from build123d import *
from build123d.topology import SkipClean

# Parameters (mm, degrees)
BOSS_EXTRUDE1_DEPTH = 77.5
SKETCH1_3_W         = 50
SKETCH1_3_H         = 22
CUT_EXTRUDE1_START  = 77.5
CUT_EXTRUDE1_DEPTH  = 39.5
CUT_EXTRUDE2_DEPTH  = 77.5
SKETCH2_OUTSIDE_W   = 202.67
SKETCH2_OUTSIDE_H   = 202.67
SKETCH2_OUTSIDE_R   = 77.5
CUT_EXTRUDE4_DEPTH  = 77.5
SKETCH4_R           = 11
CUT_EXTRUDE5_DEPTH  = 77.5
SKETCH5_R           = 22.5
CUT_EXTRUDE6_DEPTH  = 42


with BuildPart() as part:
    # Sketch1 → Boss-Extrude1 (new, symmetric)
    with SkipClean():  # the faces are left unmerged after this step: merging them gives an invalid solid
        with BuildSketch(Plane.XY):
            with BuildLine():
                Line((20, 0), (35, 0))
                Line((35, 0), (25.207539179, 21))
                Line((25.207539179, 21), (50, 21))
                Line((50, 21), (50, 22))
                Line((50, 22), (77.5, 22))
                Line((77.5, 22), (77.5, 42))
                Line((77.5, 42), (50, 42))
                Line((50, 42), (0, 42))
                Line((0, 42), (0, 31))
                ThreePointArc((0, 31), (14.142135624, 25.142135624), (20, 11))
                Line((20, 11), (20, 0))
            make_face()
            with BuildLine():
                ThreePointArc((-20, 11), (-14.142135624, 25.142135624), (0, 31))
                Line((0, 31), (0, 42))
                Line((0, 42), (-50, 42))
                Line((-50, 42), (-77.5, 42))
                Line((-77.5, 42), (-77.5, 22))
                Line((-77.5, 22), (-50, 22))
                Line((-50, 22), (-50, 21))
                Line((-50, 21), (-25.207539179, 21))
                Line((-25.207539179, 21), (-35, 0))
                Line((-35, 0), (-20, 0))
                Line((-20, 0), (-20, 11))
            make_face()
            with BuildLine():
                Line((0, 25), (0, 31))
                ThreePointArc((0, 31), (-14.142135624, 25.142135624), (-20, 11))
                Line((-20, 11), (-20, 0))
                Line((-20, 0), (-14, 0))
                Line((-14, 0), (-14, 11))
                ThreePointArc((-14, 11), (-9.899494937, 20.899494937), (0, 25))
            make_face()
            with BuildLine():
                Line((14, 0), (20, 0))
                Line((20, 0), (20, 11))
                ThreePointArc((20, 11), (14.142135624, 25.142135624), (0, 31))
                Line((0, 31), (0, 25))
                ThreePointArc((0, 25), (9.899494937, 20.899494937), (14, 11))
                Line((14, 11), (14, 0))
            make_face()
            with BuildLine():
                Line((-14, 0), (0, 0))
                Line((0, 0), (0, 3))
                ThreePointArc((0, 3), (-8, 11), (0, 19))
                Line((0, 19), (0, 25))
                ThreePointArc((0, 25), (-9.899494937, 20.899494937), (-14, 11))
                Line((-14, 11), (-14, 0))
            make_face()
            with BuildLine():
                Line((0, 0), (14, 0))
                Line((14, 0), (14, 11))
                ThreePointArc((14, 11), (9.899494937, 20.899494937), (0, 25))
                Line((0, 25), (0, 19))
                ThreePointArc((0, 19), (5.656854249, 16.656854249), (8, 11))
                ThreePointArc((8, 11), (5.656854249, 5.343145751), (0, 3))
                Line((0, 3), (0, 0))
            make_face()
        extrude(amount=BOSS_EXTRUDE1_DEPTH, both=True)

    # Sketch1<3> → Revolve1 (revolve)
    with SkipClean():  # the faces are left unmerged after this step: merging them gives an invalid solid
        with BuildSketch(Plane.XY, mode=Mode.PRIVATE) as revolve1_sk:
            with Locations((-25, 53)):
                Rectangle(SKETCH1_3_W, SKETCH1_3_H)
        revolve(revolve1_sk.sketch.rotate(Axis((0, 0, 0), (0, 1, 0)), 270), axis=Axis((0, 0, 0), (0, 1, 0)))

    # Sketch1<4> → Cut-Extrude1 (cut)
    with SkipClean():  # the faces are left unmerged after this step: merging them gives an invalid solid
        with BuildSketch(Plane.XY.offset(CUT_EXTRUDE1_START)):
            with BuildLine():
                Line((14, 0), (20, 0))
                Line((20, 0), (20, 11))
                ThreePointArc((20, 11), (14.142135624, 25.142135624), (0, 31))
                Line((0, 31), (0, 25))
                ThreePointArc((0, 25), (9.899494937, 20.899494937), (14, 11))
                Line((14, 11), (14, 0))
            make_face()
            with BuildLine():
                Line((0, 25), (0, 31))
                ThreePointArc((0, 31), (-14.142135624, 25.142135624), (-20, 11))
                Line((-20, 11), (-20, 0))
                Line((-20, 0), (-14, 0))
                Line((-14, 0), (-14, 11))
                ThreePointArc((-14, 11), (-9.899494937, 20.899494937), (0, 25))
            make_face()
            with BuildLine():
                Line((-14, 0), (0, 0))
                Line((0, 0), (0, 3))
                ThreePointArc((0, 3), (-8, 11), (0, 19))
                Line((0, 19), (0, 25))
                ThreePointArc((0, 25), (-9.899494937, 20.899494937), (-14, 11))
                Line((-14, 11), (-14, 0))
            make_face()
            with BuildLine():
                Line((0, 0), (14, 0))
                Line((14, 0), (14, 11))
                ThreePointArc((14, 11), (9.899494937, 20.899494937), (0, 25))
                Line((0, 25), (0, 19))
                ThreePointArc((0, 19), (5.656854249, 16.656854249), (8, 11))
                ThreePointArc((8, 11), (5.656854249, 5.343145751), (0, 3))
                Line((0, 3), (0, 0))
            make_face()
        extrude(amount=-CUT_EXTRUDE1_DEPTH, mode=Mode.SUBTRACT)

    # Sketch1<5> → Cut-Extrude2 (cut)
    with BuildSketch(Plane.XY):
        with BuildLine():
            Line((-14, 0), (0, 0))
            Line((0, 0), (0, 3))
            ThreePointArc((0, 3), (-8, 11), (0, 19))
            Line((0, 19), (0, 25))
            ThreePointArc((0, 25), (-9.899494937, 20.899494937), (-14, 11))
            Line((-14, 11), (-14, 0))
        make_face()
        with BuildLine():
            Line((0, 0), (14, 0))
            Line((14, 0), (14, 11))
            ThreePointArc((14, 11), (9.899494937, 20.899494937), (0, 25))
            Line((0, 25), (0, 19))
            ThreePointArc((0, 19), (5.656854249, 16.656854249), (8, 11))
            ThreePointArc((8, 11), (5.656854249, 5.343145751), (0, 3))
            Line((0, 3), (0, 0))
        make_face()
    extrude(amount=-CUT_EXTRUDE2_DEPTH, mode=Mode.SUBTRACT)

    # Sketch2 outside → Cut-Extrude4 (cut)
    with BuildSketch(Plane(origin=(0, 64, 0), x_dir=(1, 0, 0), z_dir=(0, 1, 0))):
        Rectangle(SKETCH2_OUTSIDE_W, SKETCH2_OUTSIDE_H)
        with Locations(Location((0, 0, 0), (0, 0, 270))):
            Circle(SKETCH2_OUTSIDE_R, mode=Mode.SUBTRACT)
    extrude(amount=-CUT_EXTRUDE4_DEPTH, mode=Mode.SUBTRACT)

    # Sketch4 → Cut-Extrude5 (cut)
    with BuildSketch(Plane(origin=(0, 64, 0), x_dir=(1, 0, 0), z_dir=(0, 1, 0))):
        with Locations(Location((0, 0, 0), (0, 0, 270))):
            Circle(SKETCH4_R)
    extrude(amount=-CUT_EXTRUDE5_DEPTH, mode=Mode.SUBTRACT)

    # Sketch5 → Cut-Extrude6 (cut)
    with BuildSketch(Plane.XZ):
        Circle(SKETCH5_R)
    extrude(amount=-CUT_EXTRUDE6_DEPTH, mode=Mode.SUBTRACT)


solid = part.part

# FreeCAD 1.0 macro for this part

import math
import FreeCAD as App
import Part
import Sketcher
from FreeCAD import Vector
Q = App.Units.Quantity


def add_polygon(sketch, points):
    """Adds a closed chain of lines whose ends are joined by coincident constraints."""
    first, n = sketch.GeometryCount, len(points)
    for a, b in zip(points, points[1:] + points[:1]):
        sketch.addGeometry(Part.LineSegment(App.Vector(*a, 0), App.Vector(*b, 0)), False)
    for i in range(n):
        sketch.addConstraint(Sketcher.Constraint("Coincident", first + i, 2, first + (i + 1) % n, 1))

doc = App.newDocument("Part")
body = doc.addObject("PartDesign::Body", "Body")

sketch1 = body.newObject("Sketcher::SketchObject", "Sketch")
sketch1.AttachmentSupport = (doc.getObject("XY_Plane"), [""])
sketch1.MapMode = "FlatFace"
sketch1.addGeometry([
    Part.LineSegment(Vector(20, 0, 0), Vector(35, 0, 0)),
    Part.LineSegment(Vector(35, 0, 0), Vector(25.207539, 21, 0)),
    Part.LineSegment(Vector(25.207539, 21, 0), Vector(50, 21, 0)),
    Part.LineSegment(Vector(50, 21, 0), Vector(50, 22, 0)),
    Part.LineSegment(Vector(50, 22, 0), Vector(77.5, 22, 0)),
    Part.LineSegment(Vector(77.5, 22, 0), Vector(77.5, 42, 0)),
    Part.LineSegment(Vector(77.5, 42, 0), Vector(0, 42, 0)),
    Part.LineSegment(Vector(0, 42, 0), Vector(0, 31, 0)),
    Part.ArcOfCircle(Part.Circle(Vector(0, 11, 0), Vector(0, 0, 1), 20), math.radians(0), math.radians(90)),
    Part.LineSegment(Vector(20, 11, 0), Vector(20, 0, 0)),
    Part.ArcOfCircle(Part.Circle(Vector(0, 11, 0), Vector(0, 0, 1), 20), math.radians(90), math.radians(180)),
    Part.LineSegment(Vector(0, 31, 0), Vector(0, 42, 0)),
    Part.LineSegment(Vector(0, 42, 0), Vector(-50, 42, 0)),
    Part.LineSegment(Vector(-50, 42, 0), Vector(-77.5, 42, 0)),
    Part.LineSegment(Vector(-77.5, 42, 0), Vector(-77.5, 22, 0)),
    Part.LineSegment(Vector(-77.5, 22, 0), Vector(-50, 22, 0)),
    Part.LineSegment(Vector(-50, 22, 0), Vector(-50, 21, 0)),
    Part.LineSegment(Vector(-50, 21, 0), Vector(-25.207539, 21, 0)),
    Part.LineSegment(Vector(-25.207539, 21, 0), Vector(-35, 0, 0)),
    Part.LineSegment(Vector(-35, 0, 0), Vector(-20, 0, 0)),
    Part.LineSegment(Vector(-20, 0, 0), Vector(-20, 11, 0)),
    Part.LineSegment(Vector(0, 25, 0), Vector(0, 31, 0)),
    Part.ArcOfCircle(Part.Circle(Vector(0, 11, 0), Vector(0, 0, 1), 20), math.radians(90), math.radians(180)),
    Part.LineSegment(Vector(-20, 11, 0), Vector(-20, 0, 0)),
    Part.LineSegment(Vector(-20, 0, 0), Vector(-14, 0, 0)),
    Part.LineSegment(Vector(-14, 0, 0), Vector(-14, 11, 0)),
    Part.ArcOfCircle(Part.Circle(Vector(0, 11, 0), Vector(0, 0, 1), 14), math.radians(90), math.radians(180)),
    Part.LineSegment(Vector(14, 0, 0), Vector(20, 0, 0)),
    Part.LineSegment(Vector(20, 0, 0), Vector(20, 11, 0)),
    Part.ArcOfCircle(Part.Circle(Vector(0, 11, 0), Vector(0, 0, 1), 20), math.radians(0), math.radians(90)),
    Part.LineSegment(Vector(0, 31, 0), Vector(0, 25, 0)),
    Part.ArcOfCircle(Part.Circle(Vector(0, 11, 0), Vector(0, 0, 1), 14), math.radians(0), math.radians(90)),
    Part.LineSegment(Vector(14, 11, 0), Vector(14, 0, 0)),
    Part.LineSegment(Vector(-14, 0, 0), Vector(0, 0, 0)),
    Part.LineSegment(Vector(0, 0, 0), Vector(0, 3, 0)),
    Part.ArcOfCircle(Part.Circle(Vector(0, 11, 0), Vector(0, 0, 1), 8), math.radians(90), math.radians(270)),
    Part.LineSegment(Vector(0, 19, 0), Vector(0, 25, 0)),
    Part.ArcOfCircle(Part.Circle(Vector(0, 11, 0), Vector(0, 0, 1), 14), math.radians(90), math.radians(180)),
    Part.LineSegment(Vector(-14, 11, 0), Vector(-14, 0, 0)),
    Part.LineSegment(Vector(0, 0, 0), Vector(14, 0, 0)),
    Part.LineSegment(Vector(14, 0, 0), Vector(14, 11, 0)),
    Part.ArcOfCircle(Part.Circle(Vector(0, 11, 0), Vector(0, 0, 1), 14), math.radians(0), math.radians(90)),
    Part.LineSegment(Vector(0, 25, 0), Vector(0, 19, 0)),
    Part.ArcOfCircle(Part.Circle(Vector(0, 11, 0), Vector(0, 0, 1), 8), math.radians(0), math.radians(90)),
    Part.ArcOfCircle(Part.Circle(Vector(0, 11, 0), Vector(0, 0, 1), 8), math.radians(-90), math.radians(0)),
    Part.LineSegment(Vector(0, 3, 0), Vector(0, 0, 0)),
], False)
sketch1.addConstraint([
    Sketcher.Constraint("Coincident", 0, 2, 1, 1),
    Sketcher.Constraint("Coincident", 1, 2, 2, 1),
    Sketcher.Constraint("Coincident", 2, 2, 3, 1),
    Sketcher.Constraint("Coincident", 3, 2, 4, 1),
    Sketcher.Constraint("Coincident", 4, 2, 5, 1),
    Sketcher.Constraint("Coincident", 5, 2, 6, 1),
    Sketcher.Constraint("Coincident", 6, 2, 7, 1),
    Sketcher.Constraint("Coincident", 7, 2, 8, 2),
    Sketcher.Constraint("Tangent", 8, 1, 9, 1),
    Sketcher.Constraint("Coincident", 9, 2, 0, 1),
    Sketcher.Constraint("Coincident", 10, 1, 11, 1),
    Sketcher.Constraint("Coincident", 11, 2, 12, 1),
    Sketcher.Constraint("Coincident", 12, 2, 13, 1),
    Sketcher.Constraint("Coincident", 13, 2, 14, 1),
    Sketcher.Constraint("Coincident", 14, 2, 15, 1),
    Sketcher.Constraint("Coincident", 15, 2, 16, 1),
    Sketcher.Constraint("Coincident", 16, 2, 17, 1),
    Sketcher.Constraint("Coincident", 17, 2, 18, 1),
    Sketcher.Constraint("Coincident", 18, 2, 19, 1),
    Sketcher.Constraint("Coincident", 19, 2, 20, 1),
    Sketcher.Constraint("Tangent", 20, 2, 10, 2),
    Sketcher.Constraint("Coincident", 21, 2, 22, 1),
    Sketcher.Constraint("Tangent", 22, 2, 23, 1),
    Sketcher.Constraint("Coincident", 23, 2, 24, 1),
    Sketcher.Constraint("Coincident", 24, 2, 25, 1),
    Sketcher.Constraint("Tangent", 25, 2, 26, 2),
    Sketcher.Constraint("Coincident", 26, 1, 21, 1),
    Sketcher.Constraint("Coincident", 27, 2, 28, 1),
    Sketcher.Constraint("Tangent", 28, 2, 29, 1),
    Sketcher.Constraint("Coincident", 29, 2, 30, 1),
    Sketcher.Constraint("Coincident", 30, 2, 31, 2),
    Sketcher.Constraint("Tangent", 31, 1, 32, 1),
    Sketcher.Constraint("Coincident", 32, 2, 27, 1),
    Sketcher.Constraint("Coincident", 33, 2, 34, 1),
    Sketcher.Constraint("Coincident", 34, 2, 35, 2),
    Sketcher.Constraint("Coincident", 35, 1, 36, 1),
    Sketcher.Constraint("Coincident", 36, 2, 37, 1),
    Sketcher.Constraint("Tangent", 37, 2, 38, 1),
    Sketcher.Constraint("Coincident", 38, 2, 33, 1),
    Sketcher.Constraint("Coincident", 39, 2, 40, 1),
    Sketcher.Constraint("Tangent", 40, 2, 41, 1),
    Sketcher.Constraint("Coincident", 41, 2, 42, 1),
    Sketcher.Constraint("Coincident", 42, 2, 43, 2),
    Sketcher.Constraint("Tangent", 43, 1, 44, 2),
    Sketcher.Constraint("Coincident", 44, 1, 45, 1),
    Sketcher.Constraint("Coincident", 45, 2, 39, 1),
    Sketcher.Constraint("Horizontal", 0),
    Sketcher.Constraint("Horizontal", 2),
    Sketcher.Constraint("Vertical", 3),
    Sketcher.Constraint("Horizontal", 4),
    Sketcher.Constraint("Vertical", 5),
    Sketcher.Constraint("Horizontal", 6),
    Sketcher.Constraint("Vertical", 7),
    Sketcher.Constraint("Vertical", 9),
    Sketcher.Constraint("Vertical", 11),
    Sketcher.Constraint("Horizontal", 12),
    Sketcher.Constraint("Horizontal", 13),
    Sketcher.Constraint("Vertical", 14),
    Sketcher.Constraint("Horizontal", 15),
    Sketcher.Constraint("Vertical", 16),
    Sketcher.Constraint("Horizontal", 17),
    Sketcher.Constraint("Horizontal", 19),
    Sketcher.Constraint("Vertical", 20),
    Sketcher.Constraint("Vertical", 21),
    Sketcher.Constraint("Vertical", 23),
    Sketcher.Constraint("Horizontal", 24),
    Sketcher.Constraint("Vertical", 25),
    Sketcher.Constraint("Horizontal", 27),
    Sketcher.Constraint("Vertical", 28),
    Sketcher.Constraint("Vertical", 30),
    Sketcher.Constraint("Vertical", 32),
    Sketcher.Constraint("Horizontal", 33),
    Sketcher.Constraint("Vertical", 34),
    Sketcher.Constraint("Vertical", 36),
    Sketcher.Constraint("Vertical", 38),
    Sketcher.Constraint("Horizontal", 39),
    Sketcher.Constraint("Vertical", 40),
    Sketcher.Constraint("Vertical", 42),
    Sketcher.Constraint("Vertical", 45),
    Sketcher.Constraint("Coincident", 33, 2, -1, 1),
    Sketcher.Constraint("Coincident", 45, 2, -1, 1),
    Sketcher.Constraint("Coincident", 10, 3, 8, 3),
    Sketcher.Constraint("Coincident", 22, 3, 8, 3),
    Sketcher.Constraint("Coincident", 26, 3, 8, 3),
    Sketcher.Constraint("Coincident", 29, 3, 8, 3),
    Sketcher.Constraint("Coincident", 31, 3, 8, 3),
    Sketcher.Constraint("Coincident", 35, 3, 8, 3),
    Sketcher.Constraint("Coincident", 37, 3, 8, 3),
    Sketcher.Constraint("Coincident", 41, 3, 8, 3),
    Sketcher.Constraint("Coincident", 43, 3, 8, 3),
    Sketcher.Constraint("Coincident", 10, 1, 7, 2),
    Sketcher.Constraint("Coincident", 21, 2, 7, 2),
    Sketcher.Constraint("Coincident", 27, 2, 9, 2),
    Sketcher.Constraint("Coincident", 30, 2, 26, 1),
    Sketcher.Constraint("Coincident", 36, 2, 26, 1),
    Sketcher.Constraint("Coincident", 39, 2, 32, 2),
    Sketcher.Constraint("Coincident", 42, 2, 35, 1),
    Sketcher.Constraint("Equal", 43, 44),
    Sketcher.Constraint("Symmetric", 0, 2, 18, 2, -1, 1),
    Sketcher.Constraint("Symmetric", 9, 2, 23, 2, -1, 1),
    Sketcher.Constraint("Symmetric", 5, 2, 13, 2, -2),
    Sketcher.Constraint("Symmetric", 3, 2, 15, 2, -2),
    Sketcher.Constraint("Symmetric", 1, 2, 17, 2, -2),
    Sketcher.Constraint("PointOnObject", 6, 2, -2),
    Sketcher.Constraint("Horizontal", 40, 2, 43, 1),
    Sketcher.Constraint("Vertical", 12, 2, 15, 2),
    Sketcher.Constraint("Equal", 7, 9),
    Sketcher.Constraint("Equal", 30, 36),
    Sketcher.Constraint("Radius", 8, Q("20 mm")),
    Sketcher.Constraint("Radius", 26, Q("14 mm")),
    Sketcher.Constraint("DistanceX", 0, 1, 0, 2, Q("15 mm")),
    Sketcher.Constraint("DistanceX", 12, 2, 12, 1, Q("50 mm")),
    Sketcher.Constraint("DistanceY", 3, 1, 3, 2, Q("1 mm")),
    Sketcher.Constraint("DistanceY", 5, 1, 5, 2, Q("20 mm")),
    Sketcher.Constraint("DistanceY", 7, 2, 7, 1, Q("11 mm")),
    Sketcher.Constraint("Angle", 1, Q("115 deg")),
    Sketcher.Constraint("DistanceX", 4, 1, 4, 2, Q("27.5 mm")),
])
pad1 = body.newObject("PartDesign::Pad", "Pad")
pad1.Profile = sketch1
pad1.Length = 155
pad1.Midplane = True

sketch2 = body.newObject("Sketcher::SketchObject", "Sketch001")
sketch2.AttachmentSupport = (doc.getObject("XY_Plane"), [""])
sketch2.MapMode = "FlatFace"
add_polygon(sketch2, [(-50, 64), (-50, 42), (0, 42), (0, 64)])
sketch2.addConstraint([
    Sketcher.Constraint("Vertical", 0),
    Sketcher.Constraint("Horizontal", 1),
    Sketcher.Constraint("Vertical", 2),
    Sketcher.Constraint("Horizontal", 3),
    Sketcher.Constraint("PointOnObject", 1, 2, -2),
    Sketcher.Constraint("DistanceX", 1, 1, 1, 2, Q("50 mm")),
    Sketcher.Constraint("DistanceY", 0, 2, 0, 1, Q("22 mm")),
    Sketcher.Constraint("DistanceY", -1, 1, 0, 2, Q("42 mm")),
])
revolution = body.newObject("PartDesign::Revolution", "Revolution")
revolution.Profile = sketch2
revolution.ReferenceAxis = (sketch2, ["V_Axis"])
revolution.Angle = 360

sketch3 = body.newObject("Sketcher::SketchObject", "Sketch002")
sketch3.AttachmentSupport = (doc.getObject("XY_Plane"), [""])
sketch3.MapMode = "FlatFace"
sketch3.AttachmentOffset = App.Placement(Vector(0, 0, 77.5), App.Rotation())
sketch3.addGeometry([
    Part.LineSegment(Vector(14, 0, 0), Vector(20, 0, 0)),
    Part.LineSegment(Vector(20, 0, 0), Vector(20, 11, 0)),
    Part.ArcOfCircle(Part.Circle(Vector(0, 11, 0), Vector(0, 0, 1), 20), math.radians(0), math.radians(90)),
    Part.LineSegment(Vector(0, 31, 0), Vector(0, 25, 0)),
    Part.ArcOfCircle(Part.Circle(Vector(0, 11, 0), Vector(0, 0, 1), 14), math.radians(0), math.radians(90)),
    Part.LineSegment(Vector(14, 11, 0), Vector(14, 0, 0)),
    Part.LineSegment(Vector(0, 25, 0), Vector(0, 31, 0)),
    Part.ArcOfCircle(Part.Circle(Vector(0, 11, 0), Vector(0, 0, 1), 20), math.radians(90), math.radians(180)),
    Part.LineSegment(Vector(-20, 11, 0), Vector(-20, 0, 0)),
    Part.LineSegment(Vector(-20, 0, 0), Vector(-14, 0, 0)),
    Part.LineSegment(Vector(-14, 0, 0), Vector(-14, 11, 0)),
    Part.ArcOfCircle(Part.Circle(Vector(0, 11, 0), Vector(0, 0, 1), 14), math.radians(90), math.radians(180)),
    Part.LineSegment(Vector(-14, 0, 0), Vector(0, 0, 0)),
    Part.LineSegment(Vector(0, 0, 0), Vector(0, 3, 0)),
    Part.ArcOfCircle(Part.Circle(Vector(0, 11, 0), Vector(0, 0, 1), 8), math.radians(90), math.radians(270)),
    Part.LineSegment(Vector(0, 19, 0), Vector(0, 25, 0)),
    Part.ArcOfCircle(Part.Circle(Vector(0, 11, 0), Vector(0, 0, 1), 14), math.radians(90), math.radians(180)),
    Part.LineSegment(Vector(-14, 11, 0), Vector(-14, 0, 0)),
    Part.LineSegment(Vector(0, 0, 0), Vector(14, 0, 0)),
    Part.LineSegment(Vector(14, 0, 0), Vector(14, 11, 0)),
    Part.ArcOfCircle(Part.Circle(Vector(0, 11, 0), Vector(0, 0, 1), 14), math.radians(0), math.radians(90)),
    Part.LineSegment(Vector(0, 25, 0), Vector(0, 19, 0)),
    Part.ArcOfCircle(Part.Circle(Vector(0, 11, 0), Vector(0, 0, 1), 8), math.radians(0), math.radians(90)),
    Part.ArcOfCircle(Part.Circle(Vector(0, 11, 0), Vector(0, 0, 1), 8), math.radians(-90), math.radians(0)),
    Part.LineSegment(Vector(0, 3, 0), Vector(0, 0, 0)),
], False)
sketch3.addConstraint([
    Sketcher.Constraint("Coincident", 0, 2, 1, 1),
    Sketcher.Constraint("Tangent", 1, 2, 2, 1),
    Sketcher.Constraint("Coincident", 2, 2, 3, 1),
    Sketcher.Constraint("Coincident", 3, 2, 4, 2),
    Sketcher.Constraint("Tangent", 4, 1, 5, 1),
    Sketcher.Constraint("Coincident", 5, 2, 0, 1),
    Sketcher.Constraint("Coincident", 6, 2, 7, 1),
    Sketcher.Constraint("Tangent", 7, 2, 8, 1),
    Sketcher.Constraint("Coincident", 8, 2, 9, 1),
    Sketcher.Constraint("Coincident", 9, 2, 10, 1),
    Sketcher.Constraint("Tangent", 10, 2, 11, 2),
    Sketcher.Constraint("Coincident", 11, 1, 6, 1),
    Sketcher.Constraint("Coincident", 12, 2, 13, 1),
    Sketcher.Constraint("Coincident", 13, 2, 14, 2),
    Sketcher.Constraint("Coincident", 14, 1, 15, 1),
    Sketcher.Constraint("Coincident", 15, 2, 16, 1),
    Sketcher.Constraint("Tangent", 16, 2, 17, 1),
    Sketcher.Constraint("Coincident", 17, 2, 12, 1),
    Sketcher.Constraint("Coincident", 18, 2, 19, 1),
    Sketcher.Constraint("Tangent", 19, 2, 20, 1),
    Sketcher.Constraint("Coincident", 20, 2, 21, 1),
    Sketcher.Constraint("Coincident", 21, 2, 22, 2),
    Sketcher.Constraint("Tangent", 22, 1, 23, 2),
    Sketcher.Constraint("Coincident", 23, 1, 24, 1),
    Sketcher.Constraint("Coincident", 24, 2, 18, 1),
    Sketcher.Constraint("Horizontal", 0),
    Sketcher.Constraint("Vertical", 1),
    Sketcher.Constraint("Vertical", 3),
    Sketcher.Constraint("Vertical", 5),
    Sketcher.Constraint("Vertical", 6),
    Sketcher.Constraint("Vertical", 8),
    Sketcher.Constraint("Horizontal", 9),
    Sketcher.Constraint("Vertical", 10),
    Sketcher.Constraint("Horizontal", 12),
    Sketcher.Constraint("Vertical", 13),
    Sketcher.Constraint("Vertical", 15),
    Sketcher.Constraint("Vertical", 17),
    Sketcher.Constraint("Horizontal", 18),
    Sketcher.Constraint("Vertical", 19),
    Sketcher.Constraint("Vertical", 21),
    Sketcher.Constraint("Vertical", 24),
    Sketcher.Constraint("Coincident", 12, 2, -1, 1),
    Sketcher.Constraint("Coincident", 24, 2, -1, 1),
    Sketcher.Constraint("Coincident", 4, 3, 2, 3),
    Sketcher.Constraint("Coincident", 7, 3, 2, 3),
    Sketcher.Constraint("Coincident", 11, 3, 2, 3),
    Sketcher.Constraint("Coincident", 14, 3, 2, 3),
    Sketcher.Constraint("Coincident", 16, 3, 2, 3),
    Sketcher.Constraint("Coincident", 20, 3, 2, 3),
    Sketcher.Constraint("Coincident", 22, 3, 2, 3),
    Sketcher.Constraint("Coincident", 6, 2, 2, 2),
    Sketcher.Constraint("Coincident", 15, 2, 3, 2),
    Sketcher.Constraint("Coincident", 17, 2, 9, 2),
    Sketcher.Constraint("Coincident", 18, 2, 5, 2),
    Sketcher.Constraint("Coincident", 21, 2, 14, 1),
    Sketcher.Constraint("Equal", 22, 23),
    Sketcher.Constraint("PointOnObject", 2, 3, -2),
    Sketcher.Constraint("PointOnObject", 2, 2, -2),
    Sketcher.Constraint("Horizontal", 19, 2, 22, 1),
    Sketcher.Constraint("Equal", 6, 15),
    Sketcher.Constraint("Radius", 2, Q("20 mm")),
    Sketcher.Constraint("Radius", 4, Q("14 mm")),
    Sketcher.Constraint("DistanceY", 1, 1, 1, 2, Q("11 mm")),
])
pocket1 = body.newObject("PartDesign::Pocket", "Pocket")
pocket1.Profile = sketch3
pocket1.Length = 39.5

sketch4 = body.newObject("Sketcher::SketchObject", "Sketch003")
sketch4.AttachmentSupport = (doc.getObject("XY_Plane"), [""])
sketch4.MapMode = "FlatFace"
sketch4.addGeometry([
    Part.LineSegment(Vector(-14, 0, 0), Vector(14, 0, 0)),
    Part.LineSegment(Vector(14, 0, 0), Vector(14, 11, 0)),
    Part.ArcOfCircle(Part.Circle(Vector(0, 11, 0), Vector(0, 0, 1), 14), math.radians(0), math.radians(90)),
    Part.ArcOfCircle(Part.Circle(Vector(0, 11, 0), Vector(0, 0, 1), 14), math.radians(90), math.radians(180)),
    Part.LineSegment(Vector(-14, 11, 0), Vector(-14, 0, 0)),
    Part.ArcOfCircle(Part.Circle(Vector(0, 11, 0), Vector(0, 0, 1), 8), math.radians(90), math.radians(270)),
    Part.ArcOfCircle(Part.Circle(Vector(0, 11, 0), Vector(0, 0, 1), 8), math.radians(0), math.radians(90)),
    Part.ArcOfCircle(Part.Circle(Vector(0, 11, 0), Vector(0, 0, 1), 8), math.radians(-90), math.radians(0)),
], False)
sketch4.addConstraint([
    Sketcher.Constraint("Coincident", 0, 2, 1, 1),
    Sketcher.Constraint("Tangent", 1, 2, 2, 1),
    Sketcher.Constraint("Tangent", 2, 2, 3, 1),
    Sketcher.Constraint("Tangent", 3, 2, 4, 1),
    Sketcher.Constraint("Coincident", 4, 2, 0, 1),
    Sketcher.Constraint("Tangent", 5, 1, 6, 2),
    Sketcher.Constraint("Tangent", 6, 1, 7, 2),
    Sketcher.Constraint("Tangent", 7, 1, 5, 2),
    Sketcher.Constraint("Horizontal", 0),
    Sketcher.Constraint("Vertical", 1),
    Sketcher.Constraint("Vertical", 4),
    Sketcher.Constraint("Coincident", 5, 3, 2, 3),
    Sketcher.Constraint("Equal", 2, 3),
    Sketcher.Constraint("Symmetric", 0, 2, 4, 2, -1, 1),
    Sketcher.Constraint("PointOnObject", 2, 2, -2),
    Sketcher.Constraint("PointOnObject", 5, 1, -2),
    Sketcher.Constraint("PointOnObject", 7, 1, -2),
    Sketcher.Constraint("Horizontal", 3, 2, 6, 1),
    Sketcher.Constraint("Radius", 2, Q("14 mm")),
    Sketcher.Constraint("Radius", 5, Q("8 mm")),
    Sketcher.Constraint("DistanceY", 1, 1, 1, 2, Q("11 mm")),
])
pocket2 = body.newObject("PartDesign::Pocket", "Pocket001")
pocket2.Profile = sketch4
pocket2.Length = 77.5

sketch5 = body.newObject("Sketcher::SketchObject", "Sketch004")
sketch5.AttachmentSupport = (doc.getObject("XZ_Plane"), [""])
sketch5.MapMode = "FlatFace"
sketch5.AttachmentOffset = App.Placement(Vector(0, 0, -64), App.Rotation())
add_polygon(sketch5, [(-101.335, -101.335), (-101.335, 101.335), (101.335, 101.335), (101.335, -101.335)])
sketch5.addGeometry(Part.Circle(Vector(0, 0, 0), Vector(0, 0, 1), 77.5), False)
sketch5.addConstraint([
    Sketcher.Constraint("Vertical", 0),
    Sketcher.Constraint("Horizontal", 1),
    Sketcher.Constraint("Vertical", 2),
    Sketcher.Constraint("Horizontal", 3),
    Sketcher.Constraint("Coincident", 4, 3, -1, 1),
    Sketcher.Constraint("Symmetric", 0, 2, 2, 2, -1, 1),
    Sketcher.Constraint("Equal", 3, 0),
    Sketcher.Constraint("Diameter", 4, Q("155 mm")),
    Sketcher.Constraint("DistanceX", 1, 1, 1, 2, Q("202.67 mm")),
])
pocket3 = body.newObject("PartDesign::Pocket", "Pocket002")
pocket3.Profile = sketch5
pocket3.Length = 77.5
pocket3.Reversed = True

sketch6 = body.newObject("Sketcher::SketchObject", "Sketch005")
sketch6.AttachmentSupport = (doc.getObject("XZ_Plane"), [""])
sketch6.MapMode = "FlatFace"
sketch6.AttachmentOffset = App.Placement(Vector(0, 0, -64), App.Rotation())
sketch6.addGeometry(Part.Circle(Vector(0, 0, 0), Vector(0, 0, 1), 11), False)
sketch6.addConstraint([
    Sketcher.Constraint("Coincident", 0, 3, -1, 1),
    Sketcher.Constraint("Diameter", 0, Q("22 mm")),
])
pocket4 = body.newObject("PartDesign::Pocket", "Pocket003")
pocket4.Profile = sketch6
pocket4.Length = 77.5
pocket4.Reversed = True

sketch7 = body.newObject("Sketcher::SketchObject", "Sketch006")
sketch7.AttachmentSupport = (doc.getObject("XZ_Plane"), [""])
sketch7.MapMode = "FlatFace"
sketch7.addGeometry(Part.Circle(Vector(0, 0, 0), Vector(0, 0, 1), 22.5), False)
sketch7.addConstraint([
    Sketcher.Constraint("Coincident", 0, 3, -1, 1),
    Sketcher.Constraint("Diameter", 0, Q("45 mm")),
])
pocket5 = body.newObject("PartDesign::Pocket", "Pocket004")
pocket5.Profile = sketch7
pocket5.Length = 42

doc.recompute()
